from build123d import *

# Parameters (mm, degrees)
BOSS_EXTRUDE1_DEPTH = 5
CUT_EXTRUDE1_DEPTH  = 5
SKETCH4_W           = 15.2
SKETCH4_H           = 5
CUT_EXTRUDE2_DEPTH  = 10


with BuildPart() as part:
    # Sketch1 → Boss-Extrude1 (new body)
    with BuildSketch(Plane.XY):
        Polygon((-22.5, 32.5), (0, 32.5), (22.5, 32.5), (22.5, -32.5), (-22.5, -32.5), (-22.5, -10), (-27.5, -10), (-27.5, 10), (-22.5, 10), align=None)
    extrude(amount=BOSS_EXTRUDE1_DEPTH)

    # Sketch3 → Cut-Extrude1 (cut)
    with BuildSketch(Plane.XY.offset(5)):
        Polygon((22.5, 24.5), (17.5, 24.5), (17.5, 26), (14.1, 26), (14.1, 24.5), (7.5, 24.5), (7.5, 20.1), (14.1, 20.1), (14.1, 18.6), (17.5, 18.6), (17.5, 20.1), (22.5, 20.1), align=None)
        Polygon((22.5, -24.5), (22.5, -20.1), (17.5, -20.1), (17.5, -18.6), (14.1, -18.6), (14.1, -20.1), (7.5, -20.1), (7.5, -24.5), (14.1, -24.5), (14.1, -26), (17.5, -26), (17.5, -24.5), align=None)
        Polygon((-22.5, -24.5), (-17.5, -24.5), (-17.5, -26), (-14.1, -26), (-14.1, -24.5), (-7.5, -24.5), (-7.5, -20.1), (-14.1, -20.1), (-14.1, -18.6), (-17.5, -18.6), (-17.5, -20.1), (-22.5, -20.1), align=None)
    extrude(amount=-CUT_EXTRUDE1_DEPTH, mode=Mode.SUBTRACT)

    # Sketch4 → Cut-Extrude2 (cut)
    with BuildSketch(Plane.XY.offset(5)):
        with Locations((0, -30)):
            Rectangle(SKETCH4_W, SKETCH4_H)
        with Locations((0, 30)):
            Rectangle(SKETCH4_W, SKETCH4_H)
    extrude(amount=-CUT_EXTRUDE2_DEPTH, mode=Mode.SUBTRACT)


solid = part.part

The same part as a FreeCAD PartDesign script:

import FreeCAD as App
import Part
import Sketcher

V = App.Vector

doc = App.newDocument("Part")
params = doc.addObject("Spreadsheet::Sheet", "Params")
for row, (alias, value) in enumerate([
    ("sketch1_width", "45 mm"),
    ("sketch1_width2", "5 mm"),
    ("sketch1_height", "20 mm"),
    ("sketch1_height2", "65 mm"),
    ("pad1_length", "5 mm"),
    ("sketch2_width", "5 mm"),
    ("sketch2_width2", "3.4 mm"),
    ("sketch2_width3", "6.6 mm"),
    ("sketch2_height", "1.5 mm"),
    ("sketch2_height2", "4.4 mm"),
    ("pocket1_length", "5 mm"),
    ("sketch3_height", "5 mm"),
    ("sketch3_width", "15.2 mm"),
    ("pocket2_length", "10 mm"),
], start=1):
    params.set(f"A{row}", alias)
    params.set(f"B{row}", "=" + value)
    params.setAlias(f"B{row}", alias)

body = doc.addObject("PartDesign::Body", "Body")

sketch1 = body.newObject("Sketcher::SketchObject", "Sketch")
sketch1.AttachmentSupport = (doc.getObject("XY_Plane"), [""])
sketch1.MapMode = "FlatFace"
sketch1.addGeometry([
    Part.LineSegment(V(22.5, 32.5, 0), V(-22.5, 32.5, 0)),
    Part.LineSegment(V(-22.5, 32.5, 0), V(-22.5, 10, 0)),
    Part.LineSegment(V(-22.5, 10, 0), V(-27.5, 10, 0)),
    Part.LineSegment(V(-27.5, 10, 0), V(-27.5, -10, 0)),
    Part.LineSegment(V(-27.5, -10, 0), V(-22.5, -10, 0)),
    Part.LineSegment(V(-22.5, -10, 0), V(-22.5, -32.5, 0)),
    Part.LineSegment(V(-22.5, -32.5, 0), V(22.5, -32.5, 0)),
    Part.LineSegment(V(22.5, -32.5, 0), V(22.5, 32.5, 0)),
], False)
sketch1.addConstraint([
    Sketcher.Constraint("Coincident", 0, 2, 1, 1),
    Sketcher.Constraint("Coincident", 1, 2, 2, 1),
    Sketcher.Constraint("Coincident", 2, 2, 3, 1),
    Sketcher.Constraint("Coincident", 3, 2, 4, 1),
    Sketcher.Constraint("Coincident", 4, 2, 5, 1),
    Sketcher.Constraint("Coincident", 5, 2, 6, 1),
    Sketcher.Constraint("Coincident", 6, 2, 7, 1),
    Sketcher.Constraint("Coincident", 7, 2, 0, 1),
    Sketcher.Constraint("Horizontal", 0),
    Sketcher.Constraint("Vertical", 1),
    Sketcher.Constraint("Horizontal", 2),
    Sketcher.Constraint("Vertical", 3),
    Sketcher.Constraint("Horizontal", 4),
    Sketcher.Constraint("Vertical", 5),
    Sketcher.Constraint("Horizontal", 6),
    Sketcher.Constraint("Vertical", 7),
    Sketcher.Constraint("Symmetric", 0, 2, 6, 2, -1, 1),
    Sketcher.Constraint("Symmetric", 1, 2, 4, 2, -1),
    Sketcher.Constraint("DistanceX", 0, 2, 0, 1, 45.0),
    Sketcher.Constraint("DistanceX", 2, 2, 2, 1, 5.0),
    Sketcher.Constraint("DistanceY", 3, 2, 3, 1, 20.0),
    Sketcher.Constraint("DistanceY", 7, 1, 7, 2, 65.0),
])
sketch1.setExpression("Constraints[18]", "Params.sketch1_width")
sketch1.setExpression("Constraints[19]", "Params.sketch1_width2")
sketch1.setExpression("Constraints[20]", "Params.sketch1_height")
sketch1.setExpression("Constraints[21]", "Params.sketch1_height2")
pad1 = body.newObject("PartDesign::Pad", "Pad")
pad1.Profile = sketch1
pad1.setExpression("Length", "Params.pad1_length")

sketch2 = body.newObject("Sketcher::SketchObject", "Sketch001")
sketch2.AttachmentSupport = (doc.getObject("XY_Plane"), [""])
sketch2.MapMode = "FlatFace"
sketch2.AttachmentOffset = App.Placement(V(0, 0, 5), App.Rotation())
sketch2.addGeometry([
    Part.LineSegment(V(22.5, 24.5, 0), V(17.5, 24.5, 0)),
    Part.LineSegment(V(17.5, 24.5, 0), V(17.5, 26, 0)),
    Part.LineSegment(V(17.5, 26, 0), V(14.1, 26, 0)),
    Part.LineSegment(V(14.1, 26, 0), V(14.1, 24.5, 0)),
    Part.LineSegment(V(14.1, 24.5, 0), V(7.5, 24.5, 0)),
    Part.LineSegment(V(7.5, 24.5, 0), V(7.5, 20.1, 0)),
    Part.LineSegment(V(7.5, 20.1, 0), V(14.1, 20.1, 0)),
    Part.LineSegment(V(14.1, 20.1, 0), V(14.1, 18.6, 0)),
    Part.LineSegment(V(14.1, 18.6, 0), V(17.5, 18.6, 0)),
    Part.LineSegment(V(17.5, 18.6, 0), V(17.5, 20.1, 0)),
    Part.LineSegment(V(17.5, 20.1, 0), V(22.5, 20.1, 0)),
    Part.LineSegment(V(22.5, 20.1, 0), V(22.5, 24.5, 0)),
    Part.LineSegment(V(22.5, -24.5, 0), V(22.5, -20.1, 0)),
    Part.LineSegment(V(22.5, -20.1, 0), V(17.5, -20.1, 0)),
    Part.LineSegment(V(17.5, -20.1, 0), V(17.5, -18.6, 0)),
    Part.LineSegment(V(17.5, -18.6, 0), V(14.1, -18.6, 0)),
    Part.LineSegment(V(14.1, -18.6, 0), V(14.1, -20.1, 0)),
    Part.LineSegment(V(14.1, -20.1, 0), V(7.5, -20.1, 0)),
    Part.LineSegment(V(7.5, -20.1, 0), V(7.5, -24.5, 0)),
    Part.LineSegment(V(7.5, -24.5, 0), V(14.1, -24.5, 0)),
    Part.LineSegment(V(14.1, -24.5, 0), V(14.1, -26, 0)),
    Part.LineSegment(V(14.1, -26, 0), V(17.5, -26, 0)),
    Part.LineSegment(V(17.5, -26, 0), V(17.5, -24.5, 0)),
    Part.LineSegment(V(17.5, -24.5, 0), V(22.5, -24.5, 0)),
    Part.LineSegment(V(-22.5, -24.5, 0), V(-17.5, -24.5, 0)),
    Part.LineSegment(V(-17.5, -24.5, 0), V(-17.5, -26, 0)),
    Part.LineSegment(V(-17.5, -26, 0), V(-14.1, -26, 0)),
    Part.LineSegment(V(-14.1, -26, 0), V(-14.1, -24.5, 0)),
    Part.LineSegment(V(-14.1, -24.5, 0), V(-7.5, -24.5, 0)),
    Part.LineSegment(V(-7.5, -24.5, 0), V(-7.5, -20.1, 0)),
    Part.LineSegment(V(-7.5, -20.1, 0), V(-14.1, -20.1, 0)),
    Part.LineSegment(V(-14.1, -20.1, 0), V(-14.1, -18.6, 0)),
    Part.LineSegment(V(-14.1, -18.6, 0), V(-17.5, -18.6, 0)),
    Part.LineSegment(V(-17.5, -18.6, 0), V(-17.5, -20.1, 0)),
    Part.LineSegment(V(-17.5, -20.1, 0), V(-22.5, -20.1, 0)),
    Part.LineSegment(V(-22.5, -20.1, 0), V(-22.5, -24.5, 0)),
], False)
sketch2.addConstraint([
    Sketcher.Constraint("Coincident", 0, 2, 1, 1),
    Sketcher.Constraint("Coincident", 1, 2, 2, 1),
    Sketcher.Constraint("Coincident", 2, 2, 3, 1),
    Sketcher.Constraint("Coincident", 3, 2, 4, 1),
    Sketcher.Constraint("Coincident", 4, 2, 5, 1),
    Sketcher.Constraint("Coincident", 5, 2, 6, 1),
    Sketcher.Constraint("Coincident", 6, 2, 7, 1),
    Sketcher.Constraint("Coincident", 7, 2, 8, 1),
    Sketcher.Constraint("Coincident", 8, 2, 9, 1),
    Sketcher.Constraint("Coincident", 9, 2, 10, 1),
    Sketcher.Constraint("Coincident", 10, 2, 11, 1),
    Sketcher.Constraint("Coincident", 11, 2, 0, 1),
    Sketcher.Constraint("Coincident", 12, 2, 13, 1),
    Sketcher.Constraint("Coincident", 13, 2, 14, 1),
    Sketcher.Constraint("Coincident", 14, 2, 15, 1),
    Sketcher.Constraint("Coincident", 15, 2, 16, 1),
    Sketcher.Constraint("Coincident", 16, 2, 17, 1),
    Sketcher.Constraint("Coincident", 17, 2, 18, 1),
    Sketcher.Constraint("Coincident", 18, 2, 19, 1),
    Sketcher.Constraint("Coincident", 19, 2, 20, 1),
    Sketcher.Constraint("Coincident", 20, 2, 21, 1),
    Sketcher.Constraint("Coincident", 21, 2, 22, 1),
    Sketcher.Constraint("Coincident", 22, 2, 23, 1),
    Sketcher.Constraint("Coincident", 23, 2, 12, 1),
    Sketcher.Constraint("Coincident", 24, 2, 25, 1),
    Sketcher.Constraint("Coincident", 25, 2, 26, 1),
    Sketcher.Constraint("Coincident", 26, 2, 27, 1),
    Sketcher.Constraint("Coincident", 27, 2, 28, 1),
    Sketcher.Constraint("Coincident", 28, 2, 29, 1),
    Sketcher.Constraint("Coincident", 29, 2, 30, 1),
    Sketcher.Constraint("Coincident", 30, 2, 31, 1),
    Sketcher.Constraint("Coincident", 31, 2, 32, 1),
    Sketcher.Constraint("Coincident", 32, 2, 33, 1),
    Sketcher.Constraint("Coincident", 33, 2, 34, 1),
    Sketcher.Constraint("Coincident", 34, 2, 35, 1),
    Sketcher.Constraint("Coincident", 35, 2, 24, 1),
    Sketcher.Constraint("Horizontal", 0),
    Sketcher.Constraint("Vertical", 1),
    Sketcher.Constraint("Horizontal", 2),
    Sketcher.Constraint("Vertical", 3),
    Sketcher.Constraint("Horizontal", 4),
    Sketcher.Constraint("Vertical", 5),
    Sketcher.Constraint("Horizontal", 6),
    Sketcher.Constraint("Vertical", 7),
    Sketcher.Constraint("Horizontal", 8),
    Sketcher.Constraint("Vertical", 9),
    Sketcher.Constraint("Horizontal", 10),
    Sketcher.Constraint("Vertical", 11),
    Sketcher.Constraint("Vertical", 12),
    Sketcher.Constraint("Horizontal", 13),
    Sketcher.Constraint("Vertical", 14),
    Sketcher.Constraint("Horizontal", 15),
    Sketcher.Constraint("Vertical", 16),
    Sketcher.Constraint("Horizontal", 17),
    Sketcher.Constraint("Vertical", 18),
    Sketcher.Constraint("Horizontal", 19),
    Sketcher.Constraint("Vertical", 20),
    Sketcher.Constraint("Horizontal", 21),
    Sketcher.Constraint("Vertical", 22),
    Sketcher.Constraint("Horizontal", 23),
    Sketcher.Constraint("Horizontal", 24),
    Sketcher.Constraint("Vertical", 25),
    Sketcher.Constraint("Horizontal", 26),
    Sketcher.Constraint("Vertical", 27),
    Sketcher.Constraint("Horizontal", 28),
    Sketcher.Constraint("Vertical", 29),
    Sketcher.Constraint("Horizontal", 30),
    Sketcher.Constraint("Vertical", 31),
    Sketcher.Constraint("Horizontal", 32),
    Sketcher.Constraint("Vertical", 33),
    Sketcher.Constraint("Horizontal", 34),
    Sketcher.Constraint("Vertical", 35),
    Sketcher.Constraint("Symmetric", 0, 2, 24, 2, -1, 1),
    Sketcher.Constraint("Symmetric", 2, 2, 26, 2, -1, 1),
    Sketcher.Constraint("Symmetric", 4, 2, 28, 2, -1, 1),
    Sketcher.Constraint("Symmetric", 6, 2, 30, 2, -1, 1),
    Sketcher.Constraint("Symmetric", 8, 2, 32, 2, -1, 1),
    Sketcher.Constraint("Symmetric", 10, 2, 34, 2, -1, 1),
    Sketcher.Constraint("Symmetric", 22, 2, 24, 2, -2),
    Sketcher.Constraint("Symmetric", 20, 2, 26, 2, -2),
    Sketcher.Constraint("Symmetric", 18, 2, 28, 2, -2),
    Sketcher.Constraint("Symmetric", 16, 2, 30, 2, -2),
    Sketcher.Constraint("Symmetric", 14, 2, 32, 2, -2),
    Sketcher.Constraint("Symmetric", 12, 2, 34, 2, -2),
    Sketcher.Constraint("Horizontal", 0, 2, 3, 2),
    Sketcher.Constraint("Horizontal", 6, 2, 9, 2),
    Sketcher.Constraint("Vertical", 3, 2, 6, 2),
    Sketcher.Constraint("Vertical", 1, 2, 8, 2),
    Sketcher.Constraint("Equal", 3, 7),
    Sketcher.Constraint("DistanceX", 0, 2, 0, 1, 5.0),
    Sketcher.Constraint("DistanceX", 2, 2, 2, 1, 3.4),
    Sketcher.Constraint("DistanceX", 4, 2, 4, 1, 6.6),
    Sketcher.Constraint("DistanceY", 1, 1, 1, 2, 1.5),
    Sketcher.Constraint("DistanceY", 5, 2, 5, 1, 4.4),
    Sketcher.Constraint("DistanceY", -1, 1, 1, 2, 26.0),
    Sketcher.Constraint("DistanceX", 24, 2, 18, 2, 25.0),
])
sketch2.setExpression("Constraints[89]", "Params.sketch2_width")
sketch2.setExpression("Constraints[90]", "Params.sketch2_width2")
sketch2.setExpression("Constraints[91]", "Params.sketch2_width3")
sketch2.setExpression("Constraints[92]", "Params.sketch2_height")
sketch2.setExpression("Constraints[93]", "Params.sketch2_height2")
pocket1 = body.newObject("PartDesign::Pocket", "Pocket")
pocket1.Profile = sketch2
pocket1.setExpression("Length", "Params.pocket1_length")

sketch3 = body.newObject("Sketcher::SketchObject", "Sketch002")
sketch3.AttachmentSupport = (doc.getObject("XY_Plane"), [""])
sketch3.MapMode = "FlatFace"
sketch3.AttachmentOffset = App.Placement(V(0, 0, 5), App.Rotation())
sketch3.addGeometry([
    Part.LineSegment(V(-7.6, -27.5, 0), V(-7.6, -32.5, 0)),
    Part.LineSegment(V(-7.6, -32.5, 0), V(7.6, -32.5, 0)),
    Part.LineSegment(V(7.6, -32.5, 0), V(7.6, -27.5, 0)),
    Part.LineSegment(V(7.6, -27.5, 0), V(-7.6, -27.5, 0)),
    Part.LineSegment(V(-7.6, 32.5, 0), V(-7.6, 27.5, 0)),
    Part.LineSegment(V(-7.6, 27.5, 0), V(7.6, 27.5, 0)),
    Part.LineSegment(V(7.6, 27.5, 0), V(7.6, 32.5, 0)),
    Part.LineSegment(V(7.6, 32.5, 0), V(-7.6, 32.5, 0)),
], False)
sketch3.addConstraint([
    Sketcher.Constraint("Coincident", 0, 2, 1, 1),
    Sketcher.Constraint("Coincident", 1, 2, 2, 1),
    Sketcher.Constraint("Coincident", 2, 2, 3, 1),
    Sketcher.Constraint("Coincident", 3, 2, 0, 1),
    Sketcher.Constraint("Coincident", 4, 2, 5, 1),
    Sketcher.Constraint("Coincident", 5, 2, 6, 1),
    Sketcher.Constraint("Coincident", 6, 2, 7, 1),
    Sketcher.Constraint("Coincident", 7, 2, 4, 1),
    Sketcher.Constraint("Vertical", 0),
    Sketcher.Constraint("Horizontal", 1),
    Sketcher.Constraint("Vertical", 2),
    Sketcher.Constraint("Horizontal", 3),
    Sketcher.Constraint("Vertical", 4),
    Sketcher.Constraint("Horizontal", 5),
    Sketcher.Constraint("Vertical", 6),
    Sketcher.Constraint("Horizontal", 7),
    Sketcher.Constraint("Symmetric", 2, 2, 4, 2, -1, 1),
    Sketcher.Constraint("Symmetric", 0, 2, 6, 2, -1, 1),
    Sketcher.Constraint("Vertical", 3, 2, 4, 2),
    Sketcher.Constraint("DistanceY", 0, 2, 0, 1, 5.0),
    Sketcher.Constraint("DistanceX", 1, 1, 1, 2, 15.2),
    Sketcher.Constraint("DistanceY", 3, 2, 4, 2, 55.0),
])
sketch3.setExpression("Constraints[19]", "Params.sketch3_height")
sketch3.setExpression("Constraints[20]", "Params.sketch3_width")
pocket2 = body.newObject("PartDesign::Pocket", "Pocket001")
pocket2.Profile = sketch3
pocket2.setExpression("Length", "Params.pocket2_length")

doc.recompute()
